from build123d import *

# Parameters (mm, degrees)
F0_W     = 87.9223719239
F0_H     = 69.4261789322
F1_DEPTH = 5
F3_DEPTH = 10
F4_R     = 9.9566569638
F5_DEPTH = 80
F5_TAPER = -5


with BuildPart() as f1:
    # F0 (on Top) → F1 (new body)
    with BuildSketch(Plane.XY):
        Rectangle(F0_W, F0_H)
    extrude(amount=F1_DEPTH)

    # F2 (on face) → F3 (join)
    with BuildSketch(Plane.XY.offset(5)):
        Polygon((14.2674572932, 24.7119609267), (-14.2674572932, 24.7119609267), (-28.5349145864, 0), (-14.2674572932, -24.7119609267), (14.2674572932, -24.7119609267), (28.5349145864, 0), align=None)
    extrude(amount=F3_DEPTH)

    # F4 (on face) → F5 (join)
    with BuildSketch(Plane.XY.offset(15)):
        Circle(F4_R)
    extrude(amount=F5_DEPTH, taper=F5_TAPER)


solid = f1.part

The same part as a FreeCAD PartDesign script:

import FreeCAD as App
import Part
import Sketcher
Q = App.Units.Quantity

doc = App.newDocument("Part")
body = doc.addObject("PartDesign::Body", "Body")

sketch1 = doc.addObject("Sketcher::SketchObject", "Sketch")
body.addObject(sketch1)
sketch1.AttachmentSupport = (doc.XY_Plane, [""])
sketch1.MapMode = "FlatFace"
sketch1.addGeometry([
    Part.LineSegment(App.Vector(-44, 35, 0), App.Vector(-44, -35, 0)),
    Part.LineSegment(App.Vector(-44, -35, 0), App.Vector(44, -35, 0)),
    Part.LineSegment(App.Vector(44, -35, 0), App.Vector(44, 35, 0)),
    Part.LineSegment(App.Vector(44, 35, 0), App.Vector(-44, 35, 0)),
], False)
sketch1.addConstraint([
    Sketcher.Constraint("Coincident", 0, 2, 1, 1),
    Sketcher.Constraint("Coincident", 1, 2, 2, 1),
    Sketcher.Constraint("Coincident", 2, 2, 3, 1),
    Sketcher.Constraint("Coincident", 3, 2, 0, 1),
    Sketcher.Constraint("Vertical", 0),
    Sketcher.Constraint("Horizontal", 1),
    Sketcher.Constraint("Vertical", 2),
    Sketcher.Constraint("Horizontal", 3),
    Sketcher.Constraint("Symmetric", 0, 2, 2, 2, -1, 1),
    Sketcher.Constraint("DistanceX", 1, 1, 1, 2, 87.922372),
    Sketcher.Constraint("DistanceY", 0, 2, 0, 1, 69.426179),
])
pad1 = doc.addObject("PartDesign::Pad", "Pad")
body.addObject(pad1)
pad1.Profile = sketch1
pad1.Length = 5

sketch2 = doc.addObject("Sketcher::SketchObject", "Sketch001")
body.addObject(sketch2)
sketch2.AttachmentSupport = (doc.XY_Plane, [""])
sketch2.MapMode = "FlatFace"
sketch2.AttachmentOffset = App.Placement(App.Vector(0, 0, 5), App.Rotation())
sketch2.addGeometry([
    Part.LineSegment(App.Vector(14, 25, 0), App.Vector(-14, 25, 0)),
    Part.LineSegment(App.Vector(-14, 25, 0), App.Vector(-29, 0, 0)),
    Part.LineSegment(App.Vector(-29, 0, 0), App.Vector(-14, -25, 0)),
    Part.LineSegment(App.Vector(-14, -25, 0), App.Vector(14, -25, 0)),
    Part.LineSegment(App.Vector(14, -25, 0), App.Vector(29, 0, 0)),
    Part.LineSegment(App.Vector(29, 0, 0), App.Vector(14, 25, 0)),
], False)
sketch2.addConstraint([
    Sketcher.Constraint("Coincident", 0, 2, 1, 1),
    Sketcher.Constraint("Coincident", 1, 2, 2, 1),
    Sketcher.Constraint("Coincident", 2, 2, 3, 1),
    Sketcher.Constraint("Coincident", 3, 2, 4, 1),
    Sketcher.Constraint("Coincident", 4, 2, 5, 1),
    Sketcher.Constraint("Coincident", 5, 2, 0, 1),
    Sketcher.Constraint("Horizontal", 0),
    Sketcher.Constraint("Horizontal", 3),
    Sketcher.Constraint("Symmetric", 0, 2, 3, 2, -1, 1),
    Sketcher.Constraint("Symmetric", 1, 2, 4, 2, -1, 1),
    Sketcher.Constraint("PointOnObject", 1, 2, -1),
    Sketcher.Constraint("Parallel", 2, 5),
    Sketcher.Constraint("Vertical", 0, 2, 2, 2),
    Sketcher.Constraint("Angle", 1, Q("-120 deg")),
    Sketcher.Constraint("DistanceX", 0, 2, 0, 1, 28.534915),
    Sketcher.Constraint("DistanceY", -1, 1, 0, 2, 24.711961),
])
pad2 = doc.addObject("PartDesign::Pad", "Pad001")
body.addObject(pad2)
pad2.Profile = sketch2
pad2.Length = 10

sketch3 = doc.addObject("Sketcher::SketchObject", "Sketch002")
body.addObject(sketch3)
sketch3.AttachmentSupport = (doc.XY_Plane, [""])
sketch3.MapMode = "FlatFace"
sketch3.AttachmentOffset = App.Placement(App.Vector(0, 0, 15), App.Rotation())
sketch3.addGeometry(Part.Circle(App.Vector(0, 0, 0), App.Vector(0, 0, 1), 10), False)
sketch3.addConstraint([
    Sketcher.Constraint("Coincident", 0, 3, -1, 1),
    Sketcher.Constraint("Diameter", 0, 19.913314),
])
pad3 = doc.addObject("PartDesign::Pad", "Pad002")
body.addObject(pad3)
pad3.Profile = sketch3
pad3.Length = 80
pad3.TaperAngle = 5

doc.recompute()
